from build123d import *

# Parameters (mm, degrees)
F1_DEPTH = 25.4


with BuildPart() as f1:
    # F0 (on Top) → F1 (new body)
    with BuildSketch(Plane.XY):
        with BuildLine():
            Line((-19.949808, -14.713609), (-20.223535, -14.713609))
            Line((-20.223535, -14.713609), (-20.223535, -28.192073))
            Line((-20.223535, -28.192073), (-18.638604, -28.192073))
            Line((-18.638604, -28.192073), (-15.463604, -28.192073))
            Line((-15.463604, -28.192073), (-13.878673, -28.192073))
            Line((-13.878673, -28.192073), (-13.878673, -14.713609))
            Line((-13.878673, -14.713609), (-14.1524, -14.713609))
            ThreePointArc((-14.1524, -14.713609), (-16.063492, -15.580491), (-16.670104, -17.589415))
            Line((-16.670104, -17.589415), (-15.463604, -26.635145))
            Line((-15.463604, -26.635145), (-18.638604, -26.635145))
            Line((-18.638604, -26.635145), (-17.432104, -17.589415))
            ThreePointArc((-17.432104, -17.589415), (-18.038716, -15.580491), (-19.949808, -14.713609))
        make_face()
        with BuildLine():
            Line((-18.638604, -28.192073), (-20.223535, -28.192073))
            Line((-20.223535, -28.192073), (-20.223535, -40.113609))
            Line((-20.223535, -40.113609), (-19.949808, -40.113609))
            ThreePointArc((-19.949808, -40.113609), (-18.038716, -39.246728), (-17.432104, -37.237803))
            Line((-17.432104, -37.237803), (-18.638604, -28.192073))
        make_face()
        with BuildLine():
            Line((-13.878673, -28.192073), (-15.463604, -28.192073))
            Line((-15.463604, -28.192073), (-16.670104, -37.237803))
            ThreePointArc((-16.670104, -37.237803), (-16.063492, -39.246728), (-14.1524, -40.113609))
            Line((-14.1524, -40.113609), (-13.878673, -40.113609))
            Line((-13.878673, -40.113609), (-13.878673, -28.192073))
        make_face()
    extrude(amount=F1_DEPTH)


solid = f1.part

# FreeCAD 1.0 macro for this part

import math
import FreeCAD as App
import Part
import Sketcher
from FreeCAD import Vector
Q = App.Units.Quantity

doc = App.newDocument("Part")
body = doc.addObject("PartDesign::Body", "Body")

sketch1 = body.newObject("Sketcher::SketchObject", "Sketch")
sketch1.AttachmentSupport = (doc.getObject("XY_Plane"), [""])
sketch1.MapMode = "FlatFace"
sketch1.addGeometry(Part.LineSegment(Vector(-19.949808, -14.713609, 0), Vector(-20.223535, -14.713609, 0)), False)
sketch1.addGeometry(Part.LineSegment(Vector(-20.223535, -14.713609, 0), Vector(-20.223535, -40.113609, 0)), False)
sketch1.addGeometry(Part.LineSegment(Vector(-20.223535, -40.113609, 0), Vector(-19.949808, -40.113609, 0)), False)
sketch1.addGeometry(Part.ArcOfCircle(Part.Circle(Vector(-19.949808, -37.573609, 0), Vector(0, 0, 1), 2.54), math.radians(-90.000001), math.radians(7.597155)), False)
sketch1.addGeometry(Part.LineSegment(Vector(-17.432104, -37.237803, 0), Vector(-18.638604, -28.192073, 0)), False)
sketch1.addGeometry(Part.LineSegment(Vector(-18.638604, -28.192073, 0), Vector(-15.463604, -28.192073, 0)), False)
sketch1.addGeometry(Part.LineSegment(Vector(-15.463604, -28.192073, 0), Vector(-16.670104, -37.237803, 0)), False)
sketch1.addGeometry(Part.ArcOfCircle(Part.Circle(Vector(-14.1524, -37.573609, 0), Vector(0, 0, 1), 2.54), math.radians(172.402845), math.radians(270.000001)), False)
sketch1.addGeometry(Part.LineSegment(Vector(-14.1524, -40.113609, 0), Vector(-13.878673, -40.113609, 0)), False)
sketch1.addGeometry(Part.LineSegment(Vector(-13.878673, -40.113609, 0), Vector(-13.878673, -14.713609, 0)), False)
sketch1.addGeometry(Part.LineSegment(Vector(-13.878673, -14.713609, 0), Vector(-14.1524, -14.713609, 0)), False)
sketch1.addGeometry(Part.ArcOfCircle(Part.Circle(Vector(-14.152399, -17.25361, 0), Vector(0, 0, 1), 2.540001), math.radians(90.000032), math.radians(187.597122)), False)
sketch1.addGeometry(Part.LineSegment(Vector(-16.670104, -17.589415, 0), Vector(-15.463604, -26.635145, 0)), False)
sketch1.addGeometry(Part.LineSegment(Vector(-15.463604, -26.635145, 0), Vector(-18.638604, -26.635145, 0)), False)
sketch1.addGeometry(Part.LineSegment(Vector(-18.638604, -26.635145, 0), Vector(-17.432104, -17.589415, 0)), False)
sketch1.addGeometry(Part.ArcOfCircle(Part.Circle(Vector(-19.949809, -17.25361, 0), Vector(0, 0, 1), 2.540001), math.radians(-7.597122), math.radians(89.999968)), False)
sketch1.addConstraint(Sketcher.Constraint("Coincident", 0, 2, 1, 1))
sketch1.addConstraint(Sketcher.Constraint("Coincident", 1, 2, 2, 1))
sketch1.addConstraint(Sketcher.Constraint("Coincident", 2, 2, 3, 1))
sketch1.addConstraint(Sketcher.Constraint("Coincident", 3, 2, 4, 1))
sketch1.addConstraint(Sketcher.Constraint("Coincident", 4, 2, 5, 1))
sketch1.addConstraint(Sketcher.Constraint("Coincident", 5, 2, 6, 1))
sketch1.addConstraint(Sketcher.Constraint("Coincident", 6, 2, 7, 1))
sketch1.addConstraint(Sketcher.Constraint("Coincident", 7, 2, 8, 1))
sketch1.addConstraint(Sketcher.Constraint("Coincident", 8, 2, 9, 1))
sketch1.addConstraint(Sketcher.Constraint("Coincident", 9, 2, 10, 1))
sketch1.addConstraint(Sketcher.Constraint("Coincident", 10, 2, 11, 1))
sketch1.addConstraint(Sketcher.Constraint("Coincident", 11, 2, 12, 1))
sketch1.addConstraint(Sketcher.Constraint("Coincident", 12, 2, 13, 1))
sketch1.addConstraint(Sketcher.Constraint("Coincident", 13, 2, 14, 1))
sketch1.addConstraint(Sketcher.Constraint("Coincident", 14, 2, 15, 1))
sketch1.addConstraint(Sketcher.Constraint("Coincident", 15, 2, 0, 1))
sketch1.addConstraint(Sketcher.Constraint("Horizontal", 0))
sketch1.addConstraint(Sketcher.Constraint("Vertical", 1))
sketch1.addConstraint(Sketcher.Constraint("Horizontal", 2))
sketch1.addConstraint(Sketcher.Constraint("Horizontal", 5))
sketch1.addConstraint(Sketcher.Constraint("Horizontal", 8))
sketch1.addConstraint(Sketcher.Constraint("Vertical", 9))
sketch1.addConstraint(Sketcher.Constraint("Horizontal", 10))
sketch1.addConstraint(Sketcher.Constraint("Horizontal", 13))
sketch1.addConstraint(Sketcher.Constraint("Radius", 3, Q("0.1 in")))
sketch1.addConstraint(Sketcher.Constraint("Radius", 7, Q("0.1 in")))
sketch1.addConstraint(Sketcher.Constraint("Radius", 11, Q("0.1 in")))
sketch1.addConstraint(Sketcher.Constraint("Radius", 15, Q("0.1 in")))
sketch1.addConstraint(Sketcher.Constraint("DistanceY", 1, 2, 1, 1, Q("1 in")))
sketch1.addConstraint(Sketcher.Constraint("DistanceY", 9, 1, 9, 2, Q("1 in")))
sketch1.addConstraint(Sketcher.Constraint("DistanceY", 3, 3, 11, 3, Q("0.8 in")))
sketch1.addConstraint(Sketcher.Constraint("DistanceX", 5, 1, 5, 2, Q("0.125 in")))
sketch1.addConstraint(Sketcher.Constraint("DistanceX", 13, 2, 13, 1, Q("0.125 in")))
sketch1.addConstraint(Sketcher.Constraint("DistanceX", 3, 2, 6, 2, Q("0.03 in")))
sketch1.addConstraint(Sketcher.Constraint("DistanceX", 14, 2, 11, 2, Q("0.03 in")))
sketch1.addConstraint(Sketcher.Constraint("DistanceX", 4, 2, 12, 2, Q("0.125 in")))
sketch1.addConstraint(Sketcher.Constraint("DistanceX", 4, 2, 3, 2, Q("0.0475 in")))
sketch1.addConstraint(Sketcher.Constraint("DistanceX", 11, 2, 12, 2, Q("0.0475 in")))
sketch1.addConstraint(Sketcher.Constraint("DistanceX", 7, 3, -1, 1, 14.1524))
sketch1.addConstraint(Sketcher.Constraint("DistanceX", 11, 3, -1, 1, 14.152399))
sketch1.addConstraint(Sketcher.Constraint("DistanceX", 7, 2, -1, 1, 14.1524))
sketch1.addConstraint(Sketcher.Constraint("DistanceX", 10, 2, -1, 1, 14.1524))
sketch1.addConstraint(Sketcher.Constraint("DistanceX", 0, 2, 0, 1, 0.273727))
sketch1.addConstraint(Sketcher.Constraint("DistanceX", 2, 1, 2, 2, 0.273727))
sketch1.addConstraint(Sketcher.Constraint("DistanceX", 8, 1, 8, 2, 0.273727))
sketch1.addConstraint(Sketcher.Constraint("DistanceY", 3, 3, -1, 1, 37.573609))
sketch1.addConstraint(Sketcher.Constraint("DistanceX", 15, 3, -1, 1, 19.949809))
sketch1.addConstraint(Sketcher.Constraint("DistanceX", 2, 2, -1, 1, 19.949808))
sketch1.addConstraint(Sketcher.Constraint("DistanceX", 3, 3, 11, 3, 5.797409))
sketch1.addConstraint(Sketcher.Constraint("DistanceX", 1, 2, 3, 2, 2.791431))
sketch1.addConstraint(Sketcher.Constraint("DistanceY", 3, 2, 4, 2, 9.04573))
sketch1.addConstraint(Sketcher.Constraint("DistanceY", 12, 2, 11, 2, 9.04573))
pad1 = body.newObject("PartDesign::Pad", "Pad")
pad1.Profile = sketch1
pad1.Length = Q("1 in")

doc.recompute()
